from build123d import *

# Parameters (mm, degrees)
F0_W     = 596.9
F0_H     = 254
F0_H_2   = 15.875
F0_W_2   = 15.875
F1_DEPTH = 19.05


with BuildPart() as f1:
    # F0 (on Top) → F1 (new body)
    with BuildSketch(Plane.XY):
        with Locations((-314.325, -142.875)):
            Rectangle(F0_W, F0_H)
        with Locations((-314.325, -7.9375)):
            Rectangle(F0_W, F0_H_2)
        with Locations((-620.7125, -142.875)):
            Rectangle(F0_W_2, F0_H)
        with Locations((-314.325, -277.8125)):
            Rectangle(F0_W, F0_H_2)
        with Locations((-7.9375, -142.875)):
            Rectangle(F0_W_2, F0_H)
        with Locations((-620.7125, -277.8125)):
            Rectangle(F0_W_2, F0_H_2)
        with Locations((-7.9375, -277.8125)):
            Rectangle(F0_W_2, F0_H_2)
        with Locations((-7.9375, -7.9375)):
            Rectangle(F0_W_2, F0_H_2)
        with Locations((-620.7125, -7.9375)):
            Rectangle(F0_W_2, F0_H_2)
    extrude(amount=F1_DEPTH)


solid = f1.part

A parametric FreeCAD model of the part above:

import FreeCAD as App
import Part
import Sketcher
Q = App.Units.Quantity


def add_polygon(sketch, points):
    """Adds a closed chain of lines whose ends are joined by coincident constraints."""
    first, n = sketch.GeometryCount, len(points)
    for a, b in zip(points, points[1:] + points[:1]):
        sketch.addGeometry(Part.LineSegment(App.Vector(*a, 0), App.Vector(*b, 0)), False)
    for i in range(n):
        sketch.addConstraint(Sketcher.Constraint("Coincident", first + i, 2, first + (i + 1) % n, 1))

doc = App.newDocument("Part")
params = doc.addObject("Spreadsheet::Sheet", "Params")
for row, (alias, value) in enumerate([
    ("sketch1_width", "24.75 in"),
    ("sketch1_height", "11.25 in"),
    ("pad1_length", "0.75 in"),
], start=1):
    params.set(f"A{row}", alias)
    params.set(f"B{row}", "=" + value)
    params.setAlias(f"B{row}", alias)

body = doc.addObject("PartDesign::Body", "Body")

# Sketch on XY plane
sketch1 = doc.addObject("Sketcher::SketchObject", "Sketch")
body.addObject(sketch1)
sketch1.AttachmentSupport = (doc.XY_Plane, [""])
sketch1.MapMode = "FlatFace"
add_polygon(sketch1, [(-629, -286), (0, -286), (0, 0), (-629, 0)])  # lines 0-3
sketch1.addConstraint([
    Sketcher.Constraint("Horizontal", 0),
    Sketcher.Constraint("Vertical", 1),
    Sketcher.Constraint("Horizontal", 2),
    Sketcher.Constraint("Vertical", 3),
    Sketcher.Constraint("Coincident", 1, 2, -1, 1),
    Sketcher.Constraint("DistanceX", 0, 1, 0, 2, Q("24.75 in")),
    Sketcher.Constraint("DistanceY", 1, 1, 1, 2, Q("11.25 in")),
])
sketch1.setExpression("Constraints[9]", "Params.sketch1_width")
sketch1.setExpression("Constraints[10]", "Params.sketch1_height")
pad1 = doc.addObject("PartDesign::Pad", "Pad")
body.addObject(pad1)
pad1.Profile = sketch1
pad1.setExpression("Length", "Params.pad1_length")

doc.recompute()
